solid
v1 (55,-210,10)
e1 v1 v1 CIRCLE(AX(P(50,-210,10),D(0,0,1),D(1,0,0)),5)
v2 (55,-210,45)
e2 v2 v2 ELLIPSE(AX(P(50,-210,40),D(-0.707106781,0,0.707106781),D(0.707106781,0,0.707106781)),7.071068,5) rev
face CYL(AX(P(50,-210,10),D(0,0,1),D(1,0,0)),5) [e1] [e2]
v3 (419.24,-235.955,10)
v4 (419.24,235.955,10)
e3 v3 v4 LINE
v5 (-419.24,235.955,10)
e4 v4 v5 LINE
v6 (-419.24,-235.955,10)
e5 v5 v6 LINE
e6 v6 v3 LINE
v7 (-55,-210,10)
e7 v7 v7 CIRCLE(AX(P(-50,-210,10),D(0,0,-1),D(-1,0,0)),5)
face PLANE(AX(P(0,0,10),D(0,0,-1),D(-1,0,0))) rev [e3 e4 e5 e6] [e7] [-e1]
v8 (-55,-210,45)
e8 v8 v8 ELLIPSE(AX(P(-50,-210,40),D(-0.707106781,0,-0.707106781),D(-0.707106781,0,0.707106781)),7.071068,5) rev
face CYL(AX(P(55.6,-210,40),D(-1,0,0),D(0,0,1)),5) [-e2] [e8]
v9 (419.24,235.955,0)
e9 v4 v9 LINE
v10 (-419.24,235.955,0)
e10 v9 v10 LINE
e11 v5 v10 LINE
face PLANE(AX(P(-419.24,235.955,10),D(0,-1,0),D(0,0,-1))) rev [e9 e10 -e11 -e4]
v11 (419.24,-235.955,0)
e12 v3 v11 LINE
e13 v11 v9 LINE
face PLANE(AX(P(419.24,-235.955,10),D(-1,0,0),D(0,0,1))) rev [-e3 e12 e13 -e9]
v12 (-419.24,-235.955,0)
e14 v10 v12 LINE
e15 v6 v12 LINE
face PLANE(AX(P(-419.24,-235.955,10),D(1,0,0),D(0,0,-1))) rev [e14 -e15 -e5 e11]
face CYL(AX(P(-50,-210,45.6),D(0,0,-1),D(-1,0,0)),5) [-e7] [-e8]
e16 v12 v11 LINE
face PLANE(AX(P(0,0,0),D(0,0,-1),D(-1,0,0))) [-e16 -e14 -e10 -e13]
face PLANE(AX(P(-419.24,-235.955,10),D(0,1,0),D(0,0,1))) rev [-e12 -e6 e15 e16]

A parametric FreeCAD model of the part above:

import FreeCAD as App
import Part
import Sketcher

V = App.Vector


def add_polygon(sketch, points):
    """Adds a closed chain of lines whose ends are joined by coincident constraints."""
    first, n = sketch.GeometryCount, len(points)
    for a, b in zip(points, points[1:] + points[:1]):
        sketch.addGeometry(Part.LineSegment(App.Vector(*a, 0), App.Vector(*b, 0)), False)
    for i in range(n):
        sketch.addConstraint(Sketcher.Constraint("Coincident", first + i, 2, first + (i + 1) % n, 1))

doc = App.newDocument("Part")
params = doc.addObject("Spreadsheet::Sheet", "Params")
for row, (alias, value) in enumerate([
    ("sketch1_width", "838.48 mm"),
    ("sketch1_height", "471.91 mm"),
    ("pad1_length", "10 mm"),
    ("sketch2_diameter", "10 mm"),
    ("sketch3_width", "100 mm"),
    ("sketch3_height", "30 mm"),
], start=1):
    params.set(f"A{row}", alias)
    params.set(f"B{row}", "=" + value)
    params.setAlias(f"B{row}", alias)

body = doc.addObject("PartDesign::Body", "Body")

sketch1 = body.newObject("Sketcher::SketchObject", "Sketch")
sketch1.AttachmentSupport = (doc.getObject("XY_Plane"), [""])
sketch1.MapMode = "FlatFace"
add_polygon(sketch1, [(-419, 236), (-419, -236), (419, -236), (419, 236)])
sketch1.addConstraint(Sketcher.Constraint("Vertical", 0))
sketch1.addConstraint(Sketcher.Constraint("Horizontal", 1))
sketch1.addConstraint(Sketcher.Constraint("Vertical", 2))
sketch1.addConstraint(Sketcher.Constraint("Horizontal", 3))
sketch1.addConstraint(Sketcher.Constraint("Symmetric", 0, 2, 2, 2, -1, 1))
sketch1.addConstraint(Sketcher.Constraint("DistanceX", 1, 1, 1, 2, 838.48))
sketch1.addConstraint(Sketcher.Constraint("DistanceY", 0, 2, 0, 1, 471.91))
sketch1.setExpression("Constraints[9]", "Params.sketch1_width")
sketch1.setExpression("Constraints[10]", "Params.sketch1_height")
pad1 = body.newObject("PartDesign::Pad", "Pad")
pad1.Profile = sketch1
pad1.setExpression("Length", "Params.pad1_length")

sketch2 = body.newObject("Sketcher::SketchObject", "Sketch001")
sketch2.AttachmentSupport = (doc.getObject("XY_Plane"), [""])
sketch2.MapMode = "FlatFace"
sketch2.AttachmentOffset = App.Placement(V(0, 0, 10), App.Rotation())
sketch2.addGeometry(Part.Circle(V(50, -210, 0), V(0, 0, 1), 5), False)
sketch2.addConstraint(Sketcher.Constraint("Diameter", 0, 10.0))
sketch2.addConstraint(Sketcher.Constraint("DistanceX", -1, 1, 0, 3, 50.0))
sketch2.addConstraint(Sketcher.Constraint("DistanceY", 0, 3, -1, 1, 210.0))
sketch2.setExpression("Constraints[0]", "Params.sketch2_diameter")

sketch3 = body.newObject("Sketcher::SketchObject", "Sketch002")
sketch3.AttachmentSupport = (doc.getObject("XZ_Plane"), [""])
sketch3.MapMode = "FlatFace"
sketch3.AttachmentOffset = App.Placement(V(0, 0, 210), App.Rotation())
sketch3.addGeometry(Part.LineSegment(V(-50, 10, 0), V(-50, 40, 0)), False)
sketch3.addGeometry(Part.LineSegment(V(-50, 40, 0), V(50, 40, 0)), False)
sketch3.addGeometry(Part.LineSegment(V(50, 40, 0), V(50, 10, 0)), False)
sketch3.addConstraint(Sketcher.Constraint("Coincident", 0, 2, 1, 1))
sketch3.addConstraint(Sketcher.Constraint("Coincident", 1, 2, 2, 1))
sketch3.addConstraint(Sketcher.Constraint("Vertical", 0))
sketch3.addConstraint(Sketcher.Constraint("Horizontal", 1))
sketch3.addConstraint(Sketcher.Constraint("Vertical", 2))
sketch3.addConstraint(Sketcher.Constraint("Symmetric", 0, 1, 2, 2, -2))
sketch3.addConstraint(Sketcher.Constraint("DistanceX", 1, 1, 1, 2, 100.0))
sketch3.addConstraint(Sketcher.Constraint("DistanceY", 0, 1, 0, 2, 30.0))
sketch3.addConstraint(Sketcher.Constraint("DistanceY", -1, 1, 0, 1, 10.0))
sketch3.setExpression("Constraints[6]", "Params.sketch3_width")
sketch3.setExpression("Constraints[7]", "Params.sketch3_height")
doc.recompute()

additivepipe = body.newObject("PartDesign::AdditivePipe", "AdditivePipe")
additivepipe.Profile = sketch2
additivepipe.Spine = (sketch3, ["Edge1", "Edge2", "Edge3"])
additivepipe.Transition = "Right corner"

doc.recompute()
